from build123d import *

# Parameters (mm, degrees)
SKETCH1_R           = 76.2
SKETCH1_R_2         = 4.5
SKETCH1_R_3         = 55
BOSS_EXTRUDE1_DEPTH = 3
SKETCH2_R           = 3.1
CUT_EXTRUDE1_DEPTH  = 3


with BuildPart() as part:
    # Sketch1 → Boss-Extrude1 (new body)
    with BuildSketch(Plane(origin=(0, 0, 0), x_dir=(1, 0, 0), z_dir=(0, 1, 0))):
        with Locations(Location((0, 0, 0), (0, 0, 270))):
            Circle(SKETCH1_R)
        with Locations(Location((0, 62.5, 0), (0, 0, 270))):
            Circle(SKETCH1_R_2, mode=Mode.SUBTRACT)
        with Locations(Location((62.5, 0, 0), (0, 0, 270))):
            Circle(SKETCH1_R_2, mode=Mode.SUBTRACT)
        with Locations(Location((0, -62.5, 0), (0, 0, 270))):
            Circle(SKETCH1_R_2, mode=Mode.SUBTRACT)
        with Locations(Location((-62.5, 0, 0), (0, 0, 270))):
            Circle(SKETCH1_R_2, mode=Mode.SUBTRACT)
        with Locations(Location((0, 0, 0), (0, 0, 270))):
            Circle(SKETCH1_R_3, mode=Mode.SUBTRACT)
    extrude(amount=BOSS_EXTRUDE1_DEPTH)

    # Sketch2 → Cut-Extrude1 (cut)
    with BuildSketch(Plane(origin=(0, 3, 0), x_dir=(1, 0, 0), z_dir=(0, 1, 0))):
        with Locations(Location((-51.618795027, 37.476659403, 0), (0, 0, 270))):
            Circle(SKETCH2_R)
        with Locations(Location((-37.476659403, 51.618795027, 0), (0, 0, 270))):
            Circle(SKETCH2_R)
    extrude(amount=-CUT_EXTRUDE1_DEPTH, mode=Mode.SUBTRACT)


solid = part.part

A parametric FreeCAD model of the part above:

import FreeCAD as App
import Part
import Sketcher
Q = App.Units.Quantity

doc = App.newDocument("Part")
body = doc.addObject("PartDesign::Body", "Body")

sketch1 = body.newObject("Sketcher::SketchObject", "Sketch")
sketch1.AttachmentSupport = (doc.getObject("XZ_Plane"), [""])
sketch1.MapMode = "FlatFace"
sketch1.addGeometry([
    Part.Circle(App.Vector(0, 0, 0), App.Vector(0, 0, 1), 76.2),
    Part.Circle(App.Vector(0, -62.5, 0), App.Vector(0, 0, 1), 4.5),
    Part.Circle(App.Vector(-62.5, 0, 0), App.Vector(0, 0, 1), 4.5),
    Part.Circle(App.Vector(62.5, 0, 0), App.Vector(0, 0, 1), 4.5),
    Part.Circle(App.Vector(0, 0, 0), App.Vector(0, 0, 1), 55),
    Part.Circle(App.Vector(0, 62.5, 0), App.Vector(0, 0, 1), 4.5),
], False)
sketch1.addConstraint([
    Sketcher.Constraint("Coincident", 0, 3, -1, 1),
    Sketcher.Constraint("Coincident", 4, 3, -1, 1),
    Sketcher.Constraint("Equal", 1, 2),
    Sketcher.Constraint("Equal", 2, 3),
    Sketcher.Constraint("Equal", 3, 5),
    Sketcher.Constraint("Symmetric", 2, 3, 3, 3, -1, 1),
    Sketcher.Constraint("Symmetric", 1, 3, 5, 3, -1, 1),
    Sketcher.Constraint("PointOnObject", 1, 3, -2),
    Sketcher.Constraint("PointOnObject", 2, 3, -1),
    Sketcher.Constraint("Diameter", 1, Q("9 mm")),
    Sketcher.Constraint("Diameter", 4, Q("110 mm")),
    Sketcher.Constraint("Diameter", 0, Q("152.4 mm")),
    Sketcher.Constraint("DistanceX", 2, 3, 3, 3, Q("125 mm")),
    Sketcher.Constraint("DistanceY", 1, 3, 5, 3, Q("125 mm")),
])
pad1 = body.newObject("PartDesign::Pad", "Pad")
pad1.Profile = sketch1
pad1.Length = 3
pad1.Reversed = True

sketch2 = body.newObject("Sketcher::SketchObject", "Sketch001")
sketch2.AttachmentSupport = (doc.getObject("XZ_Plane"), [""])
sketch2.MapMode = "FlatFace"
sketch2.AttachmentOffset = App.Placement(App.Vector(0, 0, -3), App.Rotation())
sketch2.addGeometry([
    Part.Circle(App.Vector(-51.6, -37.5, 0), App.Vector(0, 0, 1), 3.1),
    Part.Circle(App.Vector(-37.5, -51.6, 0), App.Vector(0, 0, 1), 3.1),
], False)
sketch2.addConstraint([
    Sketcher.Constraint("Equal", 0, 1),
    Sketcher.Constraint("Diameter", 0, Q("6.2 mm")),
    Sketcher.Constraint("DistanceY", 0, 3, -1, 1, Q("37.476659 mm")),
    Sketcher.Constraint("DistanceX", 1, 3, -1, 1, Q("37.476659 mm")),
    Sketcher.Constraint("DistanceX", 0, 3, -1, 1, Q("51.618795 mm")),
    Sketcher.Constraint("DistanceY", 1, 3, -1, 1, Q("51.618795 mm")),
])
pocket1 = body.newObject("PartDesign::Pocket", "Pocket")
pocket1.Profile = sketch2
pocket1.Length = 3
pocket1.Reversed = True

doc.recompute()
